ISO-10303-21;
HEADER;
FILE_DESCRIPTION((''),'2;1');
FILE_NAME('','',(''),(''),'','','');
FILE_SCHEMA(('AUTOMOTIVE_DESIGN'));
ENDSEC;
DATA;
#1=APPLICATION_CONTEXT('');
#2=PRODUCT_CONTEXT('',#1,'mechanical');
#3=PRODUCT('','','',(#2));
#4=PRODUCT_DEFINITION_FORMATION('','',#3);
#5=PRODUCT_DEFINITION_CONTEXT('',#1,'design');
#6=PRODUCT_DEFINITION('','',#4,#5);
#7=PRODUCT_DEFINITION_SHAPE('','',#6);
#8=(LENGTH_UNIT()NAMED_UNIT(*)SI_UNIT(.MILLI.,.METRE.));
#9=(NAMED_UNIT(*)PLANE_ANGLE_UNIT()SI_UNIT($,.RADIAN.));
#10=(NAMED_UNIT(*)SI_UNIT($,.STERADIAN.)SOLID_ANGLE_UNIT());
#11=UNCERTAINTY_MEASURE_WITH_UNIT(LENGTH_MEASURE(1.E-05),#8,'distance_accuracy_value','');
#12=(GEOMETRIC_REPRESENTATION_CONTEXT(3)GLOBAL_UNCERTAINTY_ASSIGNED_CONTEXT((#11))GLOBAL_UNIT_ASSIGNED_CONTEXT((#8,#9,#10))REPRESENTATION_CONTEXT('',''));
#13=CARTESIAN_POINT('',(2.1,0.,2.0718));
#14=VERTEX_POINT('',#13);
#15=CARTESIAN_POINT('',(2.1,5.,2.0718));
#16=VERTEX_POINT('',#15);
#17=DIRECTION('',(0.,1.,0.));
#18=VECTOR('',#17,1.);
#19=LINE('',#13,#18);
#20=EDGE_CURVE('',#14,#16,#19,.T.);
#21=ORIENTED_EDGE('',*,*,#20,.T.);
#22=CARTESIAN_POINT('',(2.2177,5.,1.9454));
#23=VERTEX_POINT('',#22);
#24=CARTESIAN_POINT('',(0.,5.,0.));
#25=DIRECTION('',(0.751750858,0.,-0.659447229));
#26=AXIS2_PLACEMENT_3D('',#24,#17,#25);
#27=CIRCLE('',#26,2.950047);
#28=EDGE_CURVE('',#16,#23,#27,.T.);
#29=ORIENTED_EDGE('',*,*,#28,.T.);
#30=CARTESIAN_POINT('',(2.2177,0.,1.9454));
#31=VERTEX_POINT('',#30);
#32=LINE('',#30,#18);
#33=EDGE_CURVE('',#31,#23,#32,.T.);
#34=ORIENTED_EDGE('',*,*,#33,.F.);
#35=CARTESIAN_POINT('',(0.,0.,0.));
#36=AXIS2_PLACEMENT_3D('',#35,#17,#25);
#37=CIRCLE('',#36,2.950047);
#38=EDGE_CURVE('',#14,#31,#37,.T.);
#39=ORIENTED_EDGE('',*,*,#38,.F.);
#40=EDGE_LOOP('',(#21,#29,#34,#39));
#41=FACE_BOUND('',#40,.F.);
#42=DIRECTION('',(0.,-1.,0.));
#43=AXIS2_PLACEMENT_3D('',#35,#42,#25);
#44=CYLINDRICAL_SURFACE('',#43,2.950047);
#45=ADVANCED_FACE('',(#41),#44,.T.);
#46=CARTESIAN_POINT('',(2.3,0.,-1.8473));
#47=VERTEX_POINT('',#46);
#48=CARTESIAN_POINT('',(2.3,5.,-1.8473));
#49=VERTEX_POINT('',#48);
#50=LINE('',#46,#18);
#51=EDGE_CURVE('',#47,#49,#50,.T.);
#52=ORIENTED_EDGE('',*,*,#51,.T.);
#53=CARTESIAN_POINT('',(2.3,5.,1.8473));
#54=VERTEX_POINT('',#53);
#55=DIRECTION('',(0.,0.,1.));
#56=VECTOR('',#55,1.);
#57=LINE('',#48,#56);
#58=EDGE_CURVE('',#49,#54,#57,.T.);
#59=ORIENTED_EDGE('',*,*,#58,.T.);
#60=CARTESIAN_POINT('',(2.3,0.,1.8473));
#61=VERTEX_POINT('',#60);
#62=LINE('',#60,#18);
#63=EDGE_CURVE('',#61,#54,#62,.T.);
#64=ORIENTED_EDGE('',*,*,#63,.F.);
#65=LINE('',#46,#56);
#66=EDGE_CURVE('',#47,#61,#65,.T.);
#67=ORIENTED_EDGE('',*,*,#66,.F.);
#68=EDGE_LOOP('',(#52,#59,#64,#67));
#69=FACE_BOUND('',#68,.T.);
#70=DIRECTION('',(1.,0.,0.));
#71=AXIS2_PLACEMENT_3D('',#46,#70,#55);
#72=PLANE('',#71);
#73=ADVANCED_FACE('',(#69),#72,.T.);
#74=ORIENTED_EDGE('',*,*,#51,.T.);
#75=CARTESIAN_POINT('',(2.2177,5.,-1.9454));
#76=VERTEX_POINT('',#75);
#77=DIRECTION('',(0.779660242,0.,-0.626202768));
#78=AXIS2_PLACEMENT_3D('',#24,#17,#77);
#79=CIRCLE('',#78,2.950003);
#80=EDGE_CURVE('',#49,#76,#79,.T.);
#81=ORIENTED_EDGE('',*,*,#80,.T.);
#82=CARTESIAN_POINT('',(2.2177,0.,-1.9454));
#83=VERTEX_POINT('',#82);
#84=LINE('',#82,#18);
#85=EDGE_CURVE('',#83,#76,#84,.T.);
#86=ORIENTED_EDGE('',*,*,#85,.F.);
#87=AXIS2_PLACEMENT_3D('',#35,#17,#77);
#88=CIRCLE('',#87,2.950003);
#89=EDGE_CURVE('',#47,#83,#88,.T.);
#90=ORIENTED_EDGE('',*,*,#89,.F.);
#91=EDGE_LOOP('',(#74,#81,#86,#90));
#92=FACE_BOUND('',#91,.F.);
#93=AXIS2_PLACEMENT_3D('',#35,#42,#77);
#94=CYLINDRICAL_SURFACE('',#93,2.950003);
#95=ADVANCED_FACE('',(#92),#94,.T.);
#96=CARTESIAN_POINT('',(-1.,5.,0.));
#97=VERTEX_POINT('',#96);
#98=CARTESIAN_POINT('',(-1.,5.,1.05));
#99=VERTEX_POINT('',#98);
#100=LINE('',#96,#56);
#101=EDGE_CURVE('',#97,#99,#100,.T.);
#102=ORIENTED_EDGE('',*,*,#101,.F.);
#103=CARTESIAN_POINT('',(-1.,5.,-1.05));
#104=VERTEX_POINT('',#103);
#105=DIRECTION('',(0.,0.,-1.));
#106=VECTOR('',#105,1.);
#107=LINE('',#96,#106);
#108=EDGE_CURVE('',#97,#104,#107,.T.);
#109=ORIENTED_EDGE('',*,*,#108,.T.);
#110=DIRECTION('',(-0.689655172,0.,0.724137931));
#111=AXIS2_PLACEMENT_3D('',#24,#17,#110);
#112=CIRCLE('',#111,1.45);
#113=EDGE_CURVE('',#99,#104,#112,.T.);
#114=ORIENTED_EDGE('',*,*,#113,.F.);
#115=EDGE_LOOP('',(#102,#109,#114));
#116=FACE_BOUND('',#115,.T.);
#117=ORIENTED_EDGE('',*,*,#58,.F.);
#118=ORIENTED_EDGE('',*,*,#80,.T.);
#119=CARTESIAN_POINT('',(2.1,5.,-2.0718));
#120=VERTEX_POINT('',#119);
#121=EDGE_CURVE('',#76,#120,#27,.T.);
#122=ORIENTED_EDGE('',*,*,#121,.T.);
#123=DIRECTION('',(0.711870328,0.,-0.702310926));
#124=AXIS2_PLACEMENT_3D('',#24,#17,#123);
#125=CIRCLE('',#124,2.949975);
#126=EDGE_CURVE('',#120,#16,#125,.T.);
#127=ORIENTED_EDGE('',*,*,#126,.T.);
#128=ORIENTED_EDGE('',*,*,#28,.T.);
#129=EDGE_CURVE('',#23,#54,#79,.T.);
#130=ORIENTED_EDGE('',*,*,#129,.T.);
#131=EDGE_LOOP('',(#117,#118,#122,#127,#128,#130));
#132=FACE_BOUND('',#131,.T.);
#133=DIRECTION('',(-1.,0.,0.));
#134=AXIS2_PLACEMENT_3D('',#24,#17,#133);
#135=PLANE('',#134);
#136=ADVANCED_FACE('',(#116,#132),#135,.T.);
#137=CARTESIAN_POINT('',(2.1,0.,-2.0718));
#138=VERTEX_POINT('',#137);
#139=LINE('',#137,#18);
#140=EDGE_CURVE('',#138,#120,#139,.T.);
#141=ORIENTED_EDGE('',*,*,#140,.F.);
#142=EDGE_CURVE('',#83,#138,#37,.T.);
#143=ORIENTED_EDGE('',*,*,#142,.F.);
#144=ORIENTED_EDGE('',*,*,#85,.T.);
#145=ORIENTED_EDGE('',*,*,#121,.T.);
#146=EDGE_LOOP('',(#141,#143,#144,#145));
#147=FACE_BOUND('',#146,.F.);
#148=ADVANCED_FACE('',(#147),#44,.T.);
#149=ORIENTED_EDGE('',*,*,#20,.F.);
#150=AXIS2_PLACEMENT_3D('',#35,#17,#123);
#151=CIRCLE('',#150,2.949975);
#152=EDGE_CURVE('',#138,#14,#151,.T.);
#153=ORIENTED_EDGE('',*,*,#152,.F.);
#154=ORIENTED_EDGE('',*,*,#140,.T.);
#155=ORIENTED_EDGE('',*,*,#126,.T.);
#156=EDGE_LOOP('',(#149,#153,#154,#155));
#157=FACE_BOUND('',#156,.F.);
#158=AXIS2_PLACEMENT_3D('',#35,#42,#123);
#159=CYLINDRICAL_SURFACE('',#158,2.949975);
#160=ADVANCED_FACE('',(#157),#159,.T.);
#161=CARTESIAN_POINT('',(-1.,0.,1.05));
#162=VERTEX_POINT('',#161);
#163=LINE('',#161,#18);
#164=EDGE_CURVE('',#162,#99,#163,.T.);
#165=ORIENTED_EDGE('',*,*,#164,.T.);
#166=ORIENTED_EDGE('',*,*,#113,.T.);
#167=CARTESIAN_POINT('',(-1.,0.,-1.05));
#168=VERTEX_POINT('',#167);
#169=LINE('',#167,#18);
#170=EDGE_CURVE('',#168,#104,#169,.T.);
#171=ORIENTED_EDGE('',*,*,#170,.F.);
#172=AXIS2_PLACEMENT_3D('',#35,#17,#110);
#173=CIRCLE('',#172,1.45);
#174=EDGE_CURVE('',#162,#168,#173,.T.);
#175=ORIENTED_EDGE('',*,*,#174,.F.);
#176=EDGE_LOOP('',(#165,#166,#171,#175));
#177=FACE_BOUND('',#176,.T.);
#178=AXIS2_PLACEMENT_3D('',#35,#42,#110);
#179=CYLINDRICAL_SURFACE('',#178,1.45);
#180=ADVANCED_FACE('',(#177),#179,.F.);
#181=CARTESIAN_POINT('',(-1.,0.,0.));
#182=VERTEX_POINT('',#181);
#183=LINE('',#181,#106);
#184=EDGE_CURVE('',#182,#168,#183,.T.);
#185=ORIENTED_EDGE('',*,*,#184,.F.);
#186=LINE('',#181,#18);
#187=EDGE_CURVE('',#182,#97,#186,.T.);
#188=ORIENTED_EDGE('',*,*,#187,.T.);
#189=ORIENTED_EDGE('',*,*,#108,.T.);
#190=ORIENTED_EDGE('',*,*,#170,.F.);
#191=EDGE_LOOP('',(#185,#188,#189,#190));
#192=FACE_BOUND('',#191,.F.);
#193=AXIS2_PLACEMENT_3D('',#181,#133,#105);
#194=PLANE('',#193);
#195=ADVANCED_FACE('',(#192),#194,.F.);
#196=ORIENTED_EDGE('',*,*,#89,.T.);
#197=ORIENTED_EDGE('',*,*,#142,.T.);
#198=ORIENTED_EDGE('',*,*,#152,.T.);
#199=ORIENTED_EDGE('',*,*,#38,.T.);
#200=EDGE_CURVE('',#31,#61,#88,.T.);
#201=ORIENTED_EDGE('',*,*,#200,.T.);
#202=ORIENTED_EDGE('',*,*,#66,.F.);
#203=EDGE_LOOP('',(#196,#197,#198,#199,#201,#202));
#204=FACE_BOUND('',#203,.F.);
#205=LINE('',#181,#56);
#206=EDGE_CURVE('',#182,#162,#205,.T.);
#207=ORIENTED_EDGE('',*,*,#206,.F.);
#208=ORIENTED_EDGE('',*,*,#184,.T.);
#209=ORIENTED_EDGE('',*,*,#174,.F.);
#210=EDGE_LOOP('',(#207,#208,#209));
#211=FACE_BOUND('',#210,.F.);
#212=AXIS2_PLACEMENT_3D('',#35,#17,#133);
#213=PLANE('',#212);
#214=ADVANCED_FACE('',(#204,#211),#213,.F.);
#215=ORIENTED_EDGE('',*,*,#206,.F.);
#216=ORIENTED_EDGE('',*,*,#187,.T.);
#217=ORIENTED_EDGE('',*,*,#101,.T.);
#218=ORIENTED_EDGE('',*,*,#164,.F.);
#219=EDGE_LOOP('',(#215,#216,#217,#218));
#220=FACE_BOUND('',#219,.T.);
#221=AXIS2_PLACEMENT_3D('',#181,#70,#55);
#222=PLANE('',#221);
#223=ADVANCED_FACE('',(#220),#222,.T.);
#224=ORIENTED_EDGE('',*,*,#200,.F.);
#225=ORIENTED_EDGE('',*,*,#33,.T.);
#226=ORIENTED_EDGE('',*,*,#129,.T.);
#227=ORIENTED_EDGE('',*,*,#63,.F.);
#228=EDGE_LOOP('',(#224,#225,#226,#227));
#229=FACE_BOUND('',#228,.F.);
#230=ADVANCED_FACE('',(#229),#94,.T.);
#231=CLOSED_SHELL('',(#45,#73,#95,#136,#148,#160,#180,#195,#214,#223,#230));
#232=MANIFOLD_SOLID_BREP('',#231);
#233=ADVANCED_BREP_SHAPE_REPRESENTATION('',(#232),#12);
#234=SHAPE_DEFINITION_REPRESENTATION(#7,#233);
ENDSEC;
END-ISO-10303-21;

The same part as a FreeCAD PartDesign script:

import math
import FreeCAD as App
import Part
import Sketcher
from FreeCAD import Vector
Q = App.Units.Quantity

doc = App.newDocument("Part")
params = doc.addObject("Spreadsheet::Sheet", "Params")
for row, (alias, value) in enumerate([
    ("sketch1_radius", "2.95 mm"),
    ("sketch1_radius2", "1.45 mm"),
    ("pad1_length", "5 mm"),
], start=1):
    params.set(f"A{row}", alias)
    params.set(f"B{row}", "=" + value)
    params.setAlias(f"B{row}", alias)

body = doc.addObject("PartDesign::Body", "Body")

sketch1 = body.newObject("Sketcher::SketchObject", "Sketch")
sketch1.AttachmentSupport = (doc.getObject("XZ_Plane"), [""])
sketch1.MapMode = "FlatFace"
sketch1.addGeometry(Part.ArcOfCircle(Part.Circle(Vector(0, 0, 0), Vector(0, 0, 1), 3), math.radians(39), math.radians(321)), False)
sketch1.addGeometry(Part.LineSegment(Vector(2.3, 1.8, 0), Vector(2.3, -1.8, 0)), False)
sketch1.addGeometry(Part.ArcOfCircle(Part.Circle(Vector(0, 0, 0), Vector(0, 0, 1), 1.4), math.radians(-134), math.radians(134)), False)
sketch1.addGeometry(Part.LineSegment(Vector(-1, 1.1, 0), Vector(-1, -1.1, 0)), False)
sketch1.addConstraint(Sketcher.Constraint("Coincident", 0, 1, 1, 1))
sketch1.addConstraint(Sketcher.Constraint("Coincident", 1, 2, 0, 2))
sketch1.addConstraint(Sketcher.Constraint("Coincident", 2, 1, 3, 2))
sketch1.addConstraint(Sketcher.Constraint("Coincident", 3, 1, 2, 2))
sketch1.addConstraint(Sketcher.Constraint("Vertical", 1))
sketch1.addConstraint(Sketcher.Constraint("Vertical", 3))
sketch1.addConstraint(Sketcher.Constraint("Coincident", 0, 3, -1, 1))
sketch1.addConstraint(Sketcher.Constraint("Coincident", 2, 3, -1, 1))
sketch1.addConstraint(Sketcher.Constraint("Radius", 0, Q("2.95 mm")))
sketch1.addConstraint(Sketcher.Constraint("Radius", 2, Q("1.45 mm")))
sketch1.addConstraint(Sketcher.Constraint("DistanceX", 2, 1, -1, 1, Q("1 mm")))
sketch1.addConstraint(Sketcher.Constraint("DistanceX", -1, 1, 0, 1, Q("2.3 mm")))
sketch1.setExpression("Constraints[8]", "Params.sketch1_radius")
sketch1.setExpression("Constraints[9]", "Params.sketch1_radius2")
pad1 = body.newObject("PartDesign::Pad", "Pad")
pad1.Profile = sketch1
pad1.setExpression("Length", "Params.pad1_length")
pad1.Reversed = True

doc.recompute()
